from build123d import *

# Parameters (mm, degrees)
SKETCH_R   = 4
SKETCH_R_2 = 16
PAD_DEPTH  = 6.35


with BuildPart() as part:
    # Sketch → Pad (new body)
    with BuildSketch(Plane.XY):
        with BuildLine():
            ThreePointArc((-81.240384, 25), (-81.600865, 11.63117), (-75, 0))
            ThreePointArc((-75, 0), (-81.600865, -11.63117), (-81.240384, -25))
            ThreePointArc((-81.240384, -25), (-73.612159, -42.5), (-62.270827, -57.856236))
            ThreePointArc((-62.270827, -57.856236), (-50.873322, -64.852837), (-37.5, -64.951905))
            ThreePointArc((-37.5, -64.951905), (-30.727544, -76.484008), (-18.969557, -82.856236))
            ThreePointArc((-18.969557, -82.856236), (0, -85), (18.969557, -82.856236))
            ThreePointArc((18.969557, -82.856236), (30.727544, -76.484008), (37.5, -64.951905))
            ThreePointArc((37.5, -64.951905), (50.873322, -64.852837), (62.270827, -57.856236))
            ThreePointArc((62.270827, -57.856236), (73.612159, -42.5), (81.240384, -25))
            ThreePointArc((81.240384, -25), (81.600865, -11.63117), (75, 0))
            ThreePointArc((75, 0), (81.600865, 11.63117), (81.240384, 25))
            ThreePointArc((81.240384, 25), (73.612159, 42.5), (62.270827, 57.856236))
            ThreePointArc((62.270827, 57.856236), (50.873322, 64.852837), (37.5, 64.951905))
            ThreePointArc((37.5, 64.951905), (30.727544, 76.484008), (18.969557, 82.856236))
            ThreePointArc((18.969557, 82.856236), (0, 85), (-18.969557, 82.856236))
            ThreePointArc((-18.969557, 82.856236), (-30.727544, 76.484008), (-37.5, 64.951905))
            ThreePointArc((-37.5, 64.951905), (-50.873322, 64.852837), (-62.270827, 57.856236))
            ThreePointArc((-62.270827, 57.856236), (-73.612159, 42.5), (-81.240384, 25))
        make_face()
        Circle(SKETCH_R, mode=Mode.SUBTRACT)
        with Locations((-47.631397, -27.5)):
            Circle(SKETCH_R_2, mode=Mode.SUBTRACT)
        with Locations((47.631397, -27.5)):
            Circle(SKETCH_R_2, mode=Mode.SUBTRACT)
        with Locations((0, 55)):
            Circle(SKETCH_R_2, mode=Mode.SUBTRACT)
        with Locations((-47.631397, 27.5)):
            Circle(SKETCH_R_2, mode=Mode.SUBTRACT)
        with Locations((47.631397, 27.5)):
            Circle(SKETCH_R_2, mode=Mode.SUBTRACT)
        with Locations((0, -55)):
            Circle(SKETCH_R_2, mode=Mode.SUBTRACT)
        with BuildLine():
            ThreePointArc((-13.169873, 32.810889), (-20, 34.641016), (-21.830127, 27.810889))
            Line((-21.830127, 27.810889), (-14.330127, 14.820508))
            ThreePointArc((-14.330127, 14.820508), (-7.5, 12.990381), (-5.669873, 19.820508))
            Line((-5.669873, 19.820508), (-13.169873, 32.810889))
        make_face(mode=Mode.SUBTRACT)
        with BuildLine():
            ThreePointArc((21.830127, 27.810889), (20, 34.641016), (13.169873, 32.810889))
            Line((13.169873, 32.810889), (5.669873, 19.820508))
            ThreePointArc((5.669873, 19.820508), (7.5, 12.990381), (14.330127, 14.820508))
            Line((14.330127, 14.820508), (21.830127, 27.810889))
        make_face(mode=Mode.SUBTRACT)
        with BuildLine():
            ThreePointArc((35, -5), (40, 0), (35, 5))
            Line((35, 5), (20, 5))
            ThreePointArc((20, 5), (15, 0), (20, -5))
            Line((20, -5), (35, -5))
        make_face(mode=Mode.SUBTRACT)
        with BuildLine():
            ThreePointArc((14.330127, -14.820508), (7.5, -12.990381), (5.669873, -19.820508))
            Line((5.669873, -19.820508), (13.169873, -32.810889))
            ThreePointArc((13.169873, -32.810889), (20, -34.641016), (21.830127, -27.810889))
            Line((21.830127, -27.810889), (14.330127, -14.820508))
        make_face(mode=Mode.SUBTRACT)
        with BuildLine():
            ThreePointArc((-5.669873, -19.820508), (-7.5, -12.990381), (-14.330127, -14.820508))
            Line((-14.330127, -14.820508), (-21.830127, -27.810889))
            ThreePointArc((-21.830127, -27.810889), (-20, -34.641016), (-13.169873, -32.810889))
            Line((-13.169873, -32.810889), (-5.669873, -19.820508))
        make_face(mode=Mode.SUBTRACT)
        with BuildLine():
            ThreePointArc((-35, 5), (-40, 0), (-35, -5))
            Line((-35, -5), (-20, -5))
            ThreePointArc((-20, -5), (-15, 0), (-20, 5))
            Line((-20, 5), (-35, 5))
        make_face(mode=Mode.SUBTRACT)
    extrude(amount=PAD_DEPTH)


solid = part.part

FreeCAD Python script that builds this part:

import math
import FreeCAD as App
import Part
import Sketcher
from FreeCAD import Vector
Q = App.Units.Quantity

doc = App.newDocument("Part")
body = doc.addObject("PartDesign::Body", "Body")

# Sketch on XY plane
sketch1 = body.newObject("Sketcher::SketchObject", "Sketch")
sketch1.AttachmentSupport = (doc.getObject("XY_Plane"), [""])
sketch1.MapMode = "FlatFace"
sketch1.addGeometry([
    Part.ArcOfCircle(Part.Circle(Vector(-57.4, 17.7, 0), Vector(0, 0, 1), 24.9), math.radians(163), math.radians(225)),  # 0
    Part.ArcOfCircle(Part.Circle(Vector(-57.4, -17.7, 0), Vector(0, 0, 1), 24.9), math.radians(135), math.radians(197)),  # 1
    Part.ArcOfCircle(Part.Circle(Vector(0, 0, 0), Vector(0, 0, 1), 85), math.radians(-163), math.radians(-137)),  # 2
    Part.ArcOfCircle(Part.Circle(Vector(-44, -40.9, 0), Vector(0, 0, 1), 24.9), math.radians(-137), math.radians(-75)),  # 3
    Part.ArcOfCircle(Part.Circle(Vector(-13.4, -58.6, 0), Vector(0, 0, 1), 24.9), math.radians(-165), math.radians(-103)),  # 4
    Part.ArcOfCircle(Part.Circle(Vector(0, 0, 0), Vector(0, 0, 1), 85), math.radians(-103), math.radians(-77)),  # 5
    Part.ArcOfCircle(Part.Circle(Vector(13.4, -58.6, 0), Vector(0, 0, 1), 24.9), math.radians(-77), math.radians(-15)),  # 6
    Part.ArcOfCircle(Part.Circle(Vector(44, -40.9, 0), Vector(0, 0, 1), 24.9), math.radians(-105), math.radians(-43)),  # 7
    Part.ArcOfCircle(Part.Circle(Vector(0, 0, 0), Vector(0, 0, 1), 85), math.radians(-43), math.radians(-17)),  # 8
    Part.ArcOfCircle(Part.Circle(Vector(57.4, -17.7, 0), Vector(0, 0, 1), 24.9), math.radians(-17), math.radians(45)),  # 9
    Part.ArcOfCircle(Part.Circle(Vector(57.4, 17.7, 0), Vector(0, 0, 1), 24.9), math.radians(-45), math.radians(17)),  # 10
    Part.ArcOfCircle(Part.Circle(Vector(0, 0, 0), Vector(0, 0, 1), 85), math.radians(17), math.radians(43)),  # 11
    Part.ArcOfCircle(Part.Circle(Vector(44, 40.9, 0), Vector(0, 0, 1), 24.9), math.radians(43), math.radians(105)),  # 12
    Part.ArcOfCircle(Part.Circle(Vector(13.4, 58.6, 0), Vector(0, 0, 1), 24.9), math.radians(15), math.radians(77)),  # 13
    Part.ArcOfCircle(Part.Circle(Vector(0, 0, 0), Vector(0, 0, 1), 85), math.radians(77), math.radians(103)),  # 14
    Part.ArcOfCircle(Part.Circle(Vector(-13.4, 58.6, 0), Vector(0, 0, 1), 24.9), math.radians(103), math.radians(165)),  # 15
    Part.ArcOfCircle(Part.Circle(Vector(-44, 40.9, 0), Vector(0, 0, 1), 24.9), math.radians(75), math.radians(137)),  # 16
    Part.ArcOfCircle(Part.Circle(Vector(0, 0, 0), Vector(0, 0, 1), 85), math.radians(137), math.radians(163)),  # 17
    Part.Circle(Vector(-47.6, -27.5, 0), Vector(0, 0, 1), 16),  # 18
    Part.ArcOfCircle(Part.Circle(Vector(-10, -17.3, 0), Vector(0, 0, 1), 5), math.radians(-30), math.radians(150)),  # 19
    Part.LineSegment(Vector(-5.7, -19.8, 0), Vector(-13.2, -32.8, 0)),  # 20
    Part.ArcOfCircle(Part.Circle(Vector(-17.5, -30.3, 0), Vector(0, 0, 1), 5), math.radians(150), math.radians(330)),  # 21
    Part.LineSegment(Vector(-21.8, -27.8, 0), Vector(-14.3, -14.8, 0)),  # 22
    Part.Circle(Vector(0, -55, 0), Vector(0, 0, 1), 16),  # 23
    Part.ArcOfCircle(Part.Circle(Vector(10, -17.3, 0), Vector(0, 0, 1), 5), math.radians(30), math.radians(210)),  # 24
    Part.LineSegment(Vector(14.3, -14.8, 0), Vector(21.8, -27.8, 0)),  # 25
    Part.ArcOfCircle(Part.Circle(Vector(17.5, -30.3, 0), Vector(0, 0, 1), 5), math.radians(-150), math.radians(30)),  # 26
    Part.LineSegment(Vector(13.2, -32.8, 0), Vector(5.7, -19.8, 0)),  # 27
    Part.Circle(Vector(47.6, -27.5, 0), Vector(0, 0, 1), 16),  # 28
    Part.Circle(Vector(-47.6, 27.5, 0), Vector(0, 0, 1), 16),  # 29
    Part.ArcOfCircle(Part.Circle(Vector(-35, 0, 0), Vector(0, 0, 1), 5), math.radians(90), math.radians(270)),  # 30
    Part.LineSegment(Vector(-35, 5, 0), Vector(-20, 5, 0)),  # 31
    Part.ArcOfCircle(Part.Circle(Vector(-20, 0, 0), Vector(0, 0, 1), 5), math.radians(-90), math.radians(90)),  # 32
    Part.LineSegment(Vector(-20, -5, 0), Vector(-35, -5, 0)),  # 33
    Part.ArcOfCircle(Part.Circle(Vector(-17.5, 30.3, 0), Vector(0, 0, 1), 5), math.radians(30), math.radians(210)),  # 34
    Part.LineSegment(Vector(-13.2, 32.8, 0), Vector(-5.7, 19.8, 0)),  # 35
    Part.ArcOfCircle(Part.Circle(Vector(-10, 17.3, 0), Vector(0, 0, 1), 5), math.radians(-150), math.radians(30)),  # 36
    Part.LineSegment(Vector(-14.3, 14.8, 0), Vector(-21.8, 27.8, 0)),  # 37
    Part.Circle(Vector(0, 0, 0), Vector(0, 0, 1), 4),  # 38
    Part.ArcOfCircle(Part.Circle(Vector(35, 0, 0), Vector(0, 0, 1), 5), math.radians(-90), math.radians(90)),  # 39
    Part.LineSegment(Vector(35, -5, 0), Vector(20, -5, 0)),  # 40
    Part.ArcOfCircle(Part.Circle(Vector(20, 0, 0), Vector(0, 0, 1), 5), math.radians(90), math.radians(270)),  # 41
    Part.LineSegment(Vector(20, 5, 0), Vector(35, 5, 0)),  # 42
    Part.ArcOfCircle(Part.Circle(Vector(17.5, 30.3, 0), Vector(0, 0, 1), 5), math.radians(-30), math.radians(150)),  # 43
    Part.LineSegment(Vector(21.8, 27.8, 0), Vector(14.3, 14.8, 0)),  # 44
    Part.ArcOfCircle(Part.Circle(Vector(10, 17.3, 0), Vector(0, 0, 1), 5), math.radians(150), math.radians(330)),  # 45
    Part.LineSegment(Vector(5.7, 19.8, 0), Vector(13.2, 32.8, 0)),  # 46
    Part.Circle(Vector(47.6, 27.5, 0), Vector(0, 0, 1), 16),  # 47
    Part.Circle(Vector(0, 55, 0), Vector(0, 0, 1), 16),  # 48
], False)
sketch1.addConstraint([
    Sketcher.Constraint("Coincident", 0, 2, 1, 1),
    Sketcher.Constraint("Tangent", 1, 2, 2, 1),
    Sketcher.Constraint("Tangent", 2, 2, 3, 1),
    Sketcher.Constraint("Coincident", 3, 2, 4, 1),
    Sketcher.Constraint("Tangent", 4, 2, 5, 1),
    Sketcher.Constraint("Tangent", 5, 2, 6, 1),
    Sketcher.Constraint("Coincident", 6, 2, 7, 1),
    Sketcher.Constraint("Tangent", 7, 2, 8, 1),
    Sketcher.Constraint("Tangent", 8, 2, 9, 1),
    Sketcher.Constraint("Coincident", 9, 2, 10, 1),
    Sketcher.Constraint("Tangent", 10, 2, 11, 1),
    Sketcher.Constraint("Tangent", 11, 2, 12, 1),
    Sketcher.Constraint("Coincident", 12, 2, 13, 1),
    Sketcher.Constraint("Tangent", 13, 2, 14, 1),
    Sketcher.Constraint("Tangent", 14, 2, 15, 1),
    Sketcher.Constraint("Coincident", 15, 2, 16, 1),
    Sketcher.Constraint("Tangent", 16, 2, 17, 1),
    Sketcher.Constraint("Tangent", 17, 2, 0, 1),
    Sketcher.Constraint("Tangent", 19, 1, 20, 1),
    Sketcher.Constraint("Tangent", 20, 2, 21, 2),
    Sketcher.Constraint("Tangent", 21, 1, 22, 1),
    Sketcher.Constraint("Tangent", 22, 2, 19, 2),
    Sketcher.Constraint("Tangent", 24, 1, 25, 1),
    Sketcher.Constraint("Tangent", 25, 2, 26, 2),
    Sketcher.Constraint("Tangent", 26, 1, 27, 1),
    Sketcher.Constraint("Tangent", 27, 2, 24, 2),
    Sketcher.Constraint("Tangent", 30, 1, 31, 1),
    Sketcher.Constraint("Tangent", 31, 2, 32, 2),
    Sketcher.Constraint("Tangent", 32, 1, 33, 1),
    Sketcher.Constraint("Tangent", 33, 2, 30, 2),
    Sketcher.Constraint("Tangent", 34, 1, 35, 1),
    Sketcher.Constraint("Tangent", 35, 2, 36, 2),
    Sketcher.Constraint("Tangent", 36, 1, 37, 1),
    Sketcher.Constraint("Tangent", 37, 2, 34, 2),
    Sketcher.Constraint("Tangent", 39, 1, 40, 1),
    Sketcher.Constraint("Tangent", 40, 2, 41, 2),
    Sketcher.Constraint("Tangent", 41, 1, 42, 1),
    Sketcher.Constraint("Tangent", 42, 2, 39, 2),
    Sketcher.Constraint("Tangent", 43, 1, 44, 1),
    Sketcher.Constraint("Tangent", 44, 2, 45, 2),
    Sketcher.Constraint("Tangent", 45, 1, 46, 1),
    Sketcher.Constraint("Tangent", 46, 2, 43, 2),
    Sketcher.Constraint("Horizontal", 31),
    Sketcher.Constraint("Horizontal", 33),
    Sketcher.Constraint("Horizontal", 40),
    Sketcher.Constraint("Horizontal", 42),
    Sketcher.Constraint("Coincident", 2, 3, -1, 1),
    Sketcher.Constraint("Coincident", 8, 3, -1, 1),
    Sketcher.Constraint("Coincident", 11, 3, -1, 1),
    Sketcher.Constraint("Coincident", 17, 3, -1, 1),
    Sketcher.Constraint("Coincident", 38, 3, -1, 1),
    Sketcher.Constraint("Equal", 0, 1),
    Sketcher.Constraint("Equal", 4, 6),
    Sketcher.Constraint("Equal", 3, 7),
    Sketcher.Constraint("Equal", 2, 8),
    Sketcher.Constraint("Equal", 1, 9),
    Sketcher.Constraint("Equal", 9, 10),
    Sketcher.Constraint("Equal", 8, 11),
    Sketcher.Constraint("Equal", 7, 12),
    Sketcher.Constraint("Equal", 6, 13),
    Sketcher.Constraint("Equal", 5, 14),
    Sketcher.Constraint("Equal", 13, 15),
    Sketcher.Constraint("Equal", 12, 16),
    Sketcher.Constraint("Equal", 11, 17),
    Sketcher.Constraint("Equal", 19, 21),
    Sketcher.Constraint("Equal", 18, 23),
    Sketcher.Constraint("Equal", 21, 24),
    Sketcher.Constraint("Equal", 24, 26),
    Sketcher.Constraint("Equal", 23, 28),
    Sketcher.Constraint("Equal", 28, 29),
    Sketcher.Constraint("Equal", 26, 30),
    Sketcher.Constraint("Equal", 32, 34),
    Sketcher.Constraint("Equal", 34, 36),
    Sketcher.Constraint("Equal", 36, 39),
    Sketcher.Constraint("Equal", 41, 43),
    Sketcher.Constraint("Equal", 43, 45),
    Sketcher.Constraint("Equal", 29, 47),
    Sketcher.Constraint("Equal", 47, 48),
    Sketcher.Constraint("Symmetric", 4, 3, 13, 3, -1, 1),
    Sketcher.Constraint("Symmetric", 6, 3, 15, 3, -1, 1),
    Sketcher.Constraint("Symmetric", 28, 3, 29, 3, -1, 1),
    Sketcher.Constraint("Symmetric", 26, 3, 34, 3, -1, 1),
    Sketcher.Constraint("Symmetric", 24, 3, 36, 3, -1, 1),
    Sketcher.Constraint("Symmetric", 30, 3, 39, 3, -1, 1),
    Sketcher.Constraint("Symmetric", 21, 3, 43, 3, -1, 1),
    Sketcher.Constraint("Symmetric", 19, 3, 45, 3, -1, 1),
    Sketcher.Constraint("Symmetric", 18, 3, 47, 3, -1, 1),
    Sketcher.Constraint("Symmetric", 23, 3, 48, 3, -1, 1),
    Sketcher.Constraint("Symmetric", 0, 2, 9, 2, -1, 1),
    Sketcher.Constraint("Symmetric", 4, 3, 6, 3, -2),
    Sketcher.Constraint("Symmetric", 19, 3, 24, 3, -2),
    Sketcher.Constraint("Symmetric", 21, 3, 26, 3, -2),
    Sketcher.Constraint("Symmetric", 18, 3, 28, 3, -2),
    Sketcher.Constraint("Symmetric", 32, 3, 41, 3, -2),
    Sketcher.Constraint("PointOnObject", 23, 3, -2),
    Sketcher.Constraint("PointOnObject", 0, 2, -1),
    Sketcher.Constraint("Horizontal", 3, 3, 7, 3),
    Sketcher.Constraint("Horizontal", 12, 3, 16, 3),
    Sketcher.Constraint("Vertical", 7, 3, 12, 3),
    Sketcher.Constraint("Diameter", 18, 32.0),
    Sketcher.Constraint("Diameter", 38, 8.0),
    Sketcher.Constraint("Radius", 19, 5.0),
    Sketcher.Constraint("DistanceX", 31, 1, 31, 2, 15.0),
    Sketcher.Constraint("Angle", 20, Q("-120 deg")),
    Sketcher.Constraint("Distance", 20, 15.0),
    Sketcher.Constraint("DistanceX", 19, 3, -1, 1, 10.0),
    Sketcher.Constraint("DistanceY", 23, 3, -1, 1, 55.0),
    Sketcher.Constraint("DistanceX", 30, 3, -1, 1, 35.0),
    Sketcher.Constraint("DistanceX", 0, 2, -1, 1, 75.0),
    Sketcher.Constraint("DistanceY", 1, 2, -1, 1, 25.0),
    Sketcher.Constraint("DistanceY", 18, 3, -1, 1, 27.5),
    Sketcher.Constraint("DistanceX", 3, 2, -1, 1, 37.5),
    Sketcher.Constraint("Radius", 3, 24.927799),
    Sketcher.Constraint("Radius", 0, 24.927802),
    Sketcher.Constraint("Radius", 4, 24.927796),
    Sketcher.Constraint("Radius", 5, 84.999985),
    Sketcher.Constraint("DistanceX", 3, 3, -1, 1, 44.008772),
    Sketcher.Constraint("DistanceX", 4, 3, -1, 1, 13.406392),
    Sketcher.Constraint("DistanceY", 19, 3, -1, 1, 17.320508),
    Sketcher.Constraint("DistanceX", 18, 3, -1, 1, 47.631397),
])
pad1 = body.newObject("PartDesign::Pad", "Pad")
pad1.Profile = sketch1
pad1.Length = 6.35

doc.recompute()
